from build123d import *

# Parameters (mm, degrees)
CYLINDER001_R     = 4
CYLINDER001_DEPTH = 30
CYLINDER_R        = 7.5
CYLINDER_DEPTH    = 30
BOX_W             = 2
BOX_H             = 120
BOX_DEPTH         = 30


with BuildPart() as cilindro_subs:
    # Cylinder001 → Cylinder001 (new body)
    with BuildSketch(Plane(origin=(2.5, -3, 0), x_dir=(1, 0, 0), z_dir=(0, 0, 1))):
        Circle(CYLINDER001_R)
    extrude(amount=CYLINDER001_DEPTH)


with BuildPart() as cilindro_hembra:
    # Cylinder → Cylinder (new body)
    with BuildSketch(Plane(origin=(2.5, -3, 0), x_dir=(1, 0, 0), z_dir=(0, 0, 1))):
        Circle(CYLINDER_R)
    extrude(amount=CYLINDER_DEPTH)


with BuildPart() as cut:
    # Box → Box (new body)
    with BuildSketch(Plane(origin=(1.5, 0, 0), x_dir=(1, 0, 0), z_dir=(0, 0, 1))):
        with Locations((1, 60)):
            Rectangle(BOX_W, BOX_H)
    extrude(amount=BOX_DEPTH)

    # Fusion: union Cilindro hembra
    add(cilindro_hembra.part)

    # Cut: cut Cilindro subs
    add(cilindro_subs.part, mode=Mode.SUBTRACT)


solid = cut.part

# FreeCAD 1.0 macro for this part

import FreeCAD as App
import Part
import Sketcher
from FreeCAD import Vector
Q = App.Units.Quantity


def add_polygon(sketch, points):
    """Adds a closed chain of lines whose ends are joined by coincident constraints."""
    first, n = sketch.GeometryCount, len(points)
    for a, b in zip(points, points[1:] + points[:1]):
        sketch.addGeometry(Part.LineSegment(App.Vector(*a, 0), App.Vector(*b, 0)), False)
    for i in range(n):
        sketch.addConstraint(Sketcher.Constraint("Coincident", first + i, 2, first + (i + 1) % n, 1))

doc = App.newDocument("Part")
body = doc.addObject("PartDesign::Body", "Body")

sketch1 = body.newObject("Sketcher::SketchObject", "Sketch")
sketch1.AttachmentSupport = (doc.getObject("XY_Plane"), [""])
sketch1.MapMode = "FlatFace"
sketch1.addGeometry(Part.Circle(Vector(2.5, -3, 0), Vector(0, 0, 1), 4), False)
sketch1.addConstraint(Sketcher.Constraint("Diameter", 0, Q("8 mm")))
sketch1.addConstraint(Sketcher.Constraint("DistanceY", 0, 3, -1, 1, Q("3 mm")))
sketch1.addConstraint(Sketcher.Constraint("DistanceX", -1, 1, 0, 3, Q("2.5 mm")))
pad1 = body.newObject("PartDesign::Pad", "Pad")
pad1.Profile = sketch1
pad1.Length = 30
body2 = doc.addObject("PartDesign::Body", "Body001")

sketch2 = body2.newObject("Sketcher::SketchObject", "Sketch001")
sketch2.AttachmentSupport = (doc.getObject("XY_Plane001"), [""])
sketch2.MapMode = "FlatFace"
sketch2.addGeometry(Part.Circle(Vector(2.5, -3, 0), Vector(0, 0, 1), 7.5), False)
sketch2.addConstraint(Sketcher.Constraint("Diameter", 0, Q("15 mm")))
sketch2.addConstraint(Sketcher.Constraint("DistanceY", 0, 3, -1, 1, Q("3 mm")))
sketch2.addConstraint(Sketcher.Constraint("DistanceX", -1, 1, 0, 3, Q("2.5 mm")))
pad2 = body2.newObject("PartDesign::Pad", "Pad001")
pad2.Profile = sketch2
pad2.Length = 30
body3 = doc.addObject("PartDesign::Body", "Body002")

sketch3 = body3.newObject("Sketcher::SketchObject", "Sketch002")
sketch3.AttachmentSupport = (doc.getObject("XY_Plane002"), [""])
sketch3.MapMode = "FlatFace"
add_polygon(sketch3, [(1.5, 120), (1.5, 0), (3.5, 0), (3.5, 120)])
sketch3.addConstraint(Sketcher.Constraint("Vertical", 0))
sketch3.addConstraint(Sketcher.Constraint("Horizontal", 1))
sketch3.addConstraint(Sketcher.Constraint("Vertical", 2))
sketch3.addConstraint(Sketcher.Constraint("Horizontal", 3))
sketch3.addConstraint(Sketcher.Constraint("PointOnObject", 0, 2, -1))
sketch3.addConstraint(Sketcher.Constraint("DistanceX", 1, 1, 1, 2, Q("2 mm")))
sketch3.addConstraint(Sketcher.Constraint("DistanceY", 0, 2, 0, 1, Q("120 mm")))
sketch3.addConstraint(Sketcher.Constraint("DistanceX", -1, 1, 0, 2, Q("1.5 mm")))
pad3 = body3.newObject("PartDesign::Pad", "Pad002")
pad3.Profile = sketch3
pad3.Length = 30
doc.recompute()

boolean = body3.newObject("PartDesign::Boolean", "Boolean")
boolean.Type = "Fuse"
boolean.addObjects([body2])
doc.recompute()

boolean2 = body3.newObject("PartDesign::Boolean", "Boolean001")
boolean2.Type = "Cut"
boolean2.addObjects([body])

doc.recompute()
